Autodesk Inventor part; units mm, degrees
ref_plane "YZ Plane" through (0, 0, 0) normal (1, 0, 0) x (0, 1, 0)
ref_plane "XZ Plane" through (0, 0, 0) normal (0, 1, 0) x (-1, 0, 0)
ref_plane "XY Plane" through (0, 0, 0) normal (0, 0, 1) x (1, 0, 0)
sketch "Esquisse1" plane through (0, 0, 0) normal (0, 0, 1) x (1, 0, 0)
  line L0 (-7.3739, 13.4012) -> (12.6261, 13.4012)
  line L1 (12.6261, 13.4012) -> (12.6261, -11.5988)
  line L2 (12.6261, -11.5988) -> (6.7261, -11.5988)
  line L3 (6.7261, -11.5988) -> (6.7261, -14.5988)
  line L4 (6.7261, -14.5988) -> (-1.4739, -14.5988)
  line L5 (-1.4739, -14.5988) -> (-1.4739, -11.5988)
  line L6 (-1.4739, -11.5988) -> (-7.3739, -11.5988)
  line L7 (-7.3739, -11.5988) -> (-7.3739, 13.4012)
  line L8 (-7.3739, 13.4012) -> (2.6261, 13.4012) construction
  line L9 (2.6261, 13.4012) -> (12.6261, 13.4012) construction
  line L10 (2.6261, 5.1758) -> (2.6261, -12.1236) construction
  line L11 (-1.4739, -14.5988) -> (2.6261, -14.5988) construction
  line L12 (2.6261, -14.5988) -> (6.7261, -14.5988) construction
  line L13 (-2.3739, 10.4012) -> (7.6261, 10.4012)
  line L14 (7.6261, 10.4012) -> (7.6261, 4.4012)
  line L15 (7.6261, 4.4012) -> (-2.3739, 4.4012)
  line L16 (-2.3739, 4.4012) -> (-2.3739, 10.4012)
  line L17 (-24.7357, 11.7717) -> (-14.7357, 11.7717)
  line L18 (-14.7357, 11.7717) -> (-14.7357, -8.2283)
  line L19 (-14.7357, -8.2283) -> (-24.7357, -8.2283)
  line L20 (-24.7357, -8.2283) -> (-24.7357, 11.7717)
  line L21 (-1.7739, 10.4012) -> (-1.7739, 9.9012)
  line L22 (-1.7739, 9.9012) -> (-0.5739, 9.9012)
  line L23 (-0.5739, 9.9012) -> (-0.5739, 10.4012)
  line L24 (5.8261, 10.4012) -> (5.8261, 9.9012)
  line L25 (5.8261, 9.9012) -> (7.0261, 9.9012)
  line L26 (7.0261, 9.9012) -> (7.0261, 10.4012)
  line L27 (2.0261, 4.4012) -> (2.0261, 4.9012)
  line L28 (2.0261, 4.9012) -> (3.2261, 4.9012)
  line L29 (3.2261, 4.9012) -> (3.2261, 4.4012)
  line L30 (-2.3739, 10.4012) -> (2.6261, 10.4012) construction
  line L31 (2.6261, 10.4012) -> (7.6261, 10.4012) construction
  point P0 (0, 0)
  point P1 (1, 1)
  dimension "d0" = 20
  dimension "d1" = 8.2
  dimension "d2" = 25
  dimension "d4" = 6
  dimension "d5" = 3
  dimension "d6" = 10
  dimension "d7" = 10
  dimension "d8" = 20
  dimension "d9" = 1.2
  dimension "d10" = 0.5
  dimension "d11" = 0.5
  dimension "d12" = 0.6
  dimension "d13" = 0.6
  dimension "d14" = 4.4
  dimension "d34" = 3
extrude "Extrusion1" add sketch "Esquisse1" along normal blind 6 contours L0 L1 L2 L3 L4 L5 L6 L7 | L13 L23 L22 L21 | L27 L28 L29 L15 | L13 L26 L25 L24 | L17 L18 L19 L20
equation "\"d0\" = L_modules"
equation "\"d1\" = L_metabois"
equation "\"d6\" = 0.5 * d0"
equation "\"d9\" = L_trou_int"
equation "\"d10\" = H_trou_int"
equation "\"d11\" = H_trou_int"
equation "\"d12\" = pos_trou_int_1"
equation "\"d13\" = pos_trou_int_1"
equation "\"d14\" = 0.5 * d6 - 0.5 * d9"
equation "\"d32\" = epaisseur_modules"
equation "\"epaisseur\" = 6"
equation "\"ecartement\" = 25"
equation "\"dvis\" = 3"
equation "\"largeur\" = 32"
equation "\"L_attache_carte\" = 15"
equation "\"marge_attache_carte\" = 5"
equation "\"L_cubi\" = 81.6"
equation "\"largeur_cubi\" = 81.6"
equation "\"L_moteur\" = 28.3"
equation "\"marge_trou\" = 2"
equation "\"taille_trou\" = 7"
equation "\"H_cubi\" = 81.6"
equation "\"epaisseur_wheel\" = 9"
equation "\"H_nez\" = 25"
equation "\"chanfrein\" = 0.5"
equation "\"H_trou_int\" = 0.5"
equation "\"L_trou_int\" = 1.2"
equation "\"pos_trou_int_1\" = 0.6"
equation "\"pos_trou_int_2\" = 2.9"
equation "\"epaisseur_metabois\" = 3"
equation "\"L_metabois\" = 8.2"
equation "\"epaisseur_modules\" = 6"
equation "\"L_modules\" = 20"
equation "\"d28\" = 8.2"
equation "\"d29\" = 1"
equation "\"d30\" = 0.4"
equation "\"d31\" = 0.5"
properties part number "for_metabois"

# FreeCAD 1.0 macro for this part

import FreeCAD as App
import Part
import Sketcher

V = App.Vector
Q = App.Units.Quantity

doc = App.newDocument("Part")
body = doc.addObject("PartDesign::Body", "Body")
body.AllowCompound = True

# Sketch on XY plane
sketch1 = body.newObject("Sketcher::SketchObject", "Sketch")
sketch1.AttachmentSupport = (doc.getObject("XY_Plane"), [""])
sketch1.MapMode = "FlatFace"
sketch1.addGeometry([
    Part.LineSegment(V(12.6, 13.4, 0), V(-7.4, 13.4, 0)),  # 0
    Part.LineSegment(V(-7.4, 13.4, 0), V(-7.4, -11.6, 0)),  # 1
    Part.LineSegment(V(-7.4, -11.6, 0), V(-1.5, -11.6, 0)),  # 2
    Part.LineSegment(V(-1.5, -11.6, 0), V(-1.5, -14.6, 0)),  # 3
    Part.LineSegment(V(-1.5, -14.6, 0), V(6.7, -14.6, 0)),  # 4
    Part.LineSegment(V(6.7, -14.6, 0), V(6.7, -11.6, 0)),  # 5
    Part.LineSegment(V(6.7, -11.6, 0), V(12.6, -11.6, 0)),  # 6
    Part.LineSegment(V(12.6, -11.6, 0), V(12.6, 13.4, 0)),  # 7
    Part.LineSegment(V(-2.4, 4.4, 0), V(-2.4, 10.4, 0)),  # 8
    Part.LineSegment(V(-2.4, 10.4, 0), V(-1.8, 10.4, 0)),  # 9
    Part.LineSegment(V(-1.8, 10.4, 0), V(-1.8, 9.9, 0)),  # 10
    Part.LineSegment(V(-1.8, 9.9, 0), V(-0.6, 9.9, 0)),  # 11
    Part.LineSegment(V(-0.6, 9.9, 0), V(-0.6, 10.4, 0)),  # 12
    Part.LineSegment(V(-0.6, 10.4, 0), V(5.8, 10.4, 0)),  # 13
    Part.LineSegment(V(5.8, 10.4, 0), V(5.8, 9.9, 0)),  # 14
    Part.LineSegment(V(5.8, 9.9, 0), V(7, 9.9, 0)),  # 15
    Part.LineSegment(V(7, 9.9, 0), V(7, 10.4, 0)),  # 16
    Part.LineSegment(V(7, 10.4, 0), V(7.6, 10.4, 0)),  # 17
    Part.LineSegment(V(7.6, 10.4, 0), V(7.6, 4.4, 0)),  # 18
    Part.LineSegment(V(7.6, 4.4, 0), V(3.2, 4.4, 0)),  # 19
    Part.LineSegment(V(3.2, 4.4, 0), V(3.2, 4.9, 0)),  # 20
    Part.LineSegment(V(3.2, 4.9, 0), V(2, 4.9, 0)),  # 21
    Part.LineSegment(V(2, 4.9, 0), V(2, 4.4, 0)),  # 22
    Part.LineSegment(V(2, 4.4, 0), V(-2.4, 4.4, 0)),  # 23
    Part.LineSegment(V(-14.7, 11.8, 0), V(-24.7, 11.8, 0)),  # 24
    Part.LineSegment(V(-24.7, 11.8, 0), V(-24.7, -8.2, 0)),  # 25
    Part.LineSegment(V(-24.7, -8.2, 0), V(-14.7, -8.2, 0)),  # 26
    Part.LineSegment(V(-14.7, -8.2, 0), V(-14.7, 11.8, 0)),  # 27
], False)
sketch1.addConstraint([
    Sketcher.Constraint("Coincident", 0, 2, 1, 1),
    Sketcher.Constraint("Coincident", 1, 2, 2, 1),
    Sketcher.Constraint("Coincident", 2, 2, 3, 1),
    Sketcher.Constraint("Coincident", 3, 2, 4, 1),
    Sketcher.Constraint("Coincident", 4, 2, 5, 1),
    Sketcher.Constraint("Coincident", 5, 2, 6, 1),
    Sketcher.Constraint("Coincident", 6, 2, 7, 1),
    Sketcher.Constraint("Coincident", 7, 2, 0, 1),
    Sketcher.Constraint("Coincident", 8, 2, 9, 1),
    Sketcher.Constraint("Coincident", 9, 2, 10, 1),
    Sketcher.Constraint("Coincident", 10, 2, 11, 1),
    Sketcher.Constraint("Coincident", 11, 2, 12, 1),
    Sketcher.Constraint("Coincident", 12, 2, 13, 1),
    Sketcher.Constraint("Coincident", 13, 2, 14, 1),
    Sketcher.Constraint("Coincident", 14, 2, 15, 1),
    Sketcher.Constraint("Coincident", 15, 2, 16, 1),
    Sketcher.Constraint("Coincident", 16, 2, 17, 1),
    Sketcher.Constraint("Coincident", 17, 2, 18, 1),
    Sketcher.Constraint("Coincident", 18, 2, 19, 1),
    Sketcher.Constraint("Coincident", 19, 2, 20, 1),
    Sketcher.Constraint("Coincident", 20, 2, 21, 1),
    Sketcher.Constraint("Coincident", 21, 2, 22, 1),
    Sketcher.Constraint("Coincident", 22, 2, 23, 1),
    Sketcher.Constraint("Coincident", 23, 2, 8, 1),
    Sketcher.Constraint("Coincident", 24, 2, 25, 1),
    Sketcher.Constraint("Coincident", 25, 2, 26, 1),
    Sketcher.Constraint("Coincident", 26, 2, 27, 1),
    Sketcher.Constraint("Coincident", 27, 2, 24, 1),
    Sketcher.Constraint("Horizontal", 0),
    Sketcher.Constraint("Vertical", 1),
    Sketcher.Constraint("Horizontal", 2),
    Sketcher.Constraint("Vertical", 3),
    Sketcher.Constraint("Horizontal", 4),
    Sketcher.Constraint("Vertical", 5),
    Sketcher.Constraint("Horizontal", 6),
    Sketcher.Constraint("Vertical", 7),
    Sketcher.Constraint("Vertical", 8),
    Sketcher.Constraint("Horizontal", 9),
    Sketcher.Constraint("Vertical", 10),
    Sketcher.Constraint("Horizontal", 11),
    Sketcher.Constraint("Vertical", 12),
    Sketcher.Constraint("Horizontal", 13),
    Sketcher.Constraint("Vertical", 14),
    Sketcher.Constraint("Horizontal", 15),
    Sketcher.Constraint("Vertical", 16),
    Sketcher.Constraint("Horizontal", 17),
    Sketcher.Constraint("Vertical", 18),
    Sketcher.Constraint("Horizontal", 19),
    Sketcher.Constraint("Vertical", 20),
    Sketcher.Constraint("Horizontal", 21),
    Sketcher.Constraint("Vertical", 22),
    Sketcher.Constraint("Horizontal", 23),
    Sketcher.Constraint("Horizontal", 24),
    Sketcher.Constraint("Vertical", 25),
    Sketcher.Constraint("Horizontal", 26),
    Sketcher.Constraint("Vertical", 27),
    Sketcher.Constraint("Horizontal", 2, 2, 5, 2),
    Sketcher.Constraint("Horizontal", 9, 2, 12, 2),
    Sketcher.Constraint("Horizontal", 11, 2, 14, 2),
    Sketcher.Constraint("Horizontal", 13, 2, 16, 2),
    Sketcher.Constraint("Horizontal", 19, 2, 22, 2),
    Sketcher.Constraint("Equal", 2, 6),
    Sketcher.Constraint("Equal", 11, 15),
    Sketcher.Constraint("Equal", 9, 17),
    Sketcher.Constraint("Equal", 15, 21),
    Sketcher.Constraint("Equal", 19, 23),
    Sketcher.Constraint("Equal", 16, 20),
    Sketcher.Constraint("Equal", 0, 25),
    Sketcher.Constraint("DistanceX", 0, 2, 0, 1, Q("20 mm")),
    Sketcher.Constraint("DistanceX", 24, 2, 24, 1, Q("10 mm")),
    Sketcher.Constraint("DistanceY", 1, 2, 1, 1, Q("25 mm")),
    Sketcher.Constraint("DistanceY", 3, 2, 3, 1, Q("3 mm")),
    Sketcher.Constraint("DistanceY", 8, 1, 8, 2, Q("6 mm")),
    Sketcher.Constraint("DistanceX", 4, 1, 4, 2, Q("8.2 mm")),
    Sketcher.Constraint("DistanceX", 9, 1, 9, 2, Q("0.6 mm")),
    Sketcher.Constraint("DistanceX", 11, 1, 11, 2, Q("1.2 mm")),
    Sketcher.Constraint("DistanceX", 19, 2, 19, 1, Q("4.4 mm")),
    Sketcher.Constraint("DistanceY", 10, 2, 10, 1, Q("0.5 mm")),
    Sketcher.Constraint("DistanceY", 8, 2, 0, 2, Q("3 mm")),
    Sketcher.Constraint("DistanceX", 0, 2, 8, 2, Q("5 mm")),
    Sketcher.Constraint("DistanceX", 0, 2, -1, 1, Q("7.374 mm")),
    Sketcher.Constraint("DistanceY", -1, 1, 0, 2, Q("13.4012 mm")),
    Sketcher.Constraint("DistanceX", 24, 2, -1, 1, Q("24.7357 mm")),
    Sketcher.Constraint("DistanceY", -1, 1, 24, 2, Q("11.7717 mm")),
])
pad1 = body.newObject("PartDesign::Pad", "Pad")
pad1.Profile = sketch1
pad1.Length = 6

doc.recompute()
